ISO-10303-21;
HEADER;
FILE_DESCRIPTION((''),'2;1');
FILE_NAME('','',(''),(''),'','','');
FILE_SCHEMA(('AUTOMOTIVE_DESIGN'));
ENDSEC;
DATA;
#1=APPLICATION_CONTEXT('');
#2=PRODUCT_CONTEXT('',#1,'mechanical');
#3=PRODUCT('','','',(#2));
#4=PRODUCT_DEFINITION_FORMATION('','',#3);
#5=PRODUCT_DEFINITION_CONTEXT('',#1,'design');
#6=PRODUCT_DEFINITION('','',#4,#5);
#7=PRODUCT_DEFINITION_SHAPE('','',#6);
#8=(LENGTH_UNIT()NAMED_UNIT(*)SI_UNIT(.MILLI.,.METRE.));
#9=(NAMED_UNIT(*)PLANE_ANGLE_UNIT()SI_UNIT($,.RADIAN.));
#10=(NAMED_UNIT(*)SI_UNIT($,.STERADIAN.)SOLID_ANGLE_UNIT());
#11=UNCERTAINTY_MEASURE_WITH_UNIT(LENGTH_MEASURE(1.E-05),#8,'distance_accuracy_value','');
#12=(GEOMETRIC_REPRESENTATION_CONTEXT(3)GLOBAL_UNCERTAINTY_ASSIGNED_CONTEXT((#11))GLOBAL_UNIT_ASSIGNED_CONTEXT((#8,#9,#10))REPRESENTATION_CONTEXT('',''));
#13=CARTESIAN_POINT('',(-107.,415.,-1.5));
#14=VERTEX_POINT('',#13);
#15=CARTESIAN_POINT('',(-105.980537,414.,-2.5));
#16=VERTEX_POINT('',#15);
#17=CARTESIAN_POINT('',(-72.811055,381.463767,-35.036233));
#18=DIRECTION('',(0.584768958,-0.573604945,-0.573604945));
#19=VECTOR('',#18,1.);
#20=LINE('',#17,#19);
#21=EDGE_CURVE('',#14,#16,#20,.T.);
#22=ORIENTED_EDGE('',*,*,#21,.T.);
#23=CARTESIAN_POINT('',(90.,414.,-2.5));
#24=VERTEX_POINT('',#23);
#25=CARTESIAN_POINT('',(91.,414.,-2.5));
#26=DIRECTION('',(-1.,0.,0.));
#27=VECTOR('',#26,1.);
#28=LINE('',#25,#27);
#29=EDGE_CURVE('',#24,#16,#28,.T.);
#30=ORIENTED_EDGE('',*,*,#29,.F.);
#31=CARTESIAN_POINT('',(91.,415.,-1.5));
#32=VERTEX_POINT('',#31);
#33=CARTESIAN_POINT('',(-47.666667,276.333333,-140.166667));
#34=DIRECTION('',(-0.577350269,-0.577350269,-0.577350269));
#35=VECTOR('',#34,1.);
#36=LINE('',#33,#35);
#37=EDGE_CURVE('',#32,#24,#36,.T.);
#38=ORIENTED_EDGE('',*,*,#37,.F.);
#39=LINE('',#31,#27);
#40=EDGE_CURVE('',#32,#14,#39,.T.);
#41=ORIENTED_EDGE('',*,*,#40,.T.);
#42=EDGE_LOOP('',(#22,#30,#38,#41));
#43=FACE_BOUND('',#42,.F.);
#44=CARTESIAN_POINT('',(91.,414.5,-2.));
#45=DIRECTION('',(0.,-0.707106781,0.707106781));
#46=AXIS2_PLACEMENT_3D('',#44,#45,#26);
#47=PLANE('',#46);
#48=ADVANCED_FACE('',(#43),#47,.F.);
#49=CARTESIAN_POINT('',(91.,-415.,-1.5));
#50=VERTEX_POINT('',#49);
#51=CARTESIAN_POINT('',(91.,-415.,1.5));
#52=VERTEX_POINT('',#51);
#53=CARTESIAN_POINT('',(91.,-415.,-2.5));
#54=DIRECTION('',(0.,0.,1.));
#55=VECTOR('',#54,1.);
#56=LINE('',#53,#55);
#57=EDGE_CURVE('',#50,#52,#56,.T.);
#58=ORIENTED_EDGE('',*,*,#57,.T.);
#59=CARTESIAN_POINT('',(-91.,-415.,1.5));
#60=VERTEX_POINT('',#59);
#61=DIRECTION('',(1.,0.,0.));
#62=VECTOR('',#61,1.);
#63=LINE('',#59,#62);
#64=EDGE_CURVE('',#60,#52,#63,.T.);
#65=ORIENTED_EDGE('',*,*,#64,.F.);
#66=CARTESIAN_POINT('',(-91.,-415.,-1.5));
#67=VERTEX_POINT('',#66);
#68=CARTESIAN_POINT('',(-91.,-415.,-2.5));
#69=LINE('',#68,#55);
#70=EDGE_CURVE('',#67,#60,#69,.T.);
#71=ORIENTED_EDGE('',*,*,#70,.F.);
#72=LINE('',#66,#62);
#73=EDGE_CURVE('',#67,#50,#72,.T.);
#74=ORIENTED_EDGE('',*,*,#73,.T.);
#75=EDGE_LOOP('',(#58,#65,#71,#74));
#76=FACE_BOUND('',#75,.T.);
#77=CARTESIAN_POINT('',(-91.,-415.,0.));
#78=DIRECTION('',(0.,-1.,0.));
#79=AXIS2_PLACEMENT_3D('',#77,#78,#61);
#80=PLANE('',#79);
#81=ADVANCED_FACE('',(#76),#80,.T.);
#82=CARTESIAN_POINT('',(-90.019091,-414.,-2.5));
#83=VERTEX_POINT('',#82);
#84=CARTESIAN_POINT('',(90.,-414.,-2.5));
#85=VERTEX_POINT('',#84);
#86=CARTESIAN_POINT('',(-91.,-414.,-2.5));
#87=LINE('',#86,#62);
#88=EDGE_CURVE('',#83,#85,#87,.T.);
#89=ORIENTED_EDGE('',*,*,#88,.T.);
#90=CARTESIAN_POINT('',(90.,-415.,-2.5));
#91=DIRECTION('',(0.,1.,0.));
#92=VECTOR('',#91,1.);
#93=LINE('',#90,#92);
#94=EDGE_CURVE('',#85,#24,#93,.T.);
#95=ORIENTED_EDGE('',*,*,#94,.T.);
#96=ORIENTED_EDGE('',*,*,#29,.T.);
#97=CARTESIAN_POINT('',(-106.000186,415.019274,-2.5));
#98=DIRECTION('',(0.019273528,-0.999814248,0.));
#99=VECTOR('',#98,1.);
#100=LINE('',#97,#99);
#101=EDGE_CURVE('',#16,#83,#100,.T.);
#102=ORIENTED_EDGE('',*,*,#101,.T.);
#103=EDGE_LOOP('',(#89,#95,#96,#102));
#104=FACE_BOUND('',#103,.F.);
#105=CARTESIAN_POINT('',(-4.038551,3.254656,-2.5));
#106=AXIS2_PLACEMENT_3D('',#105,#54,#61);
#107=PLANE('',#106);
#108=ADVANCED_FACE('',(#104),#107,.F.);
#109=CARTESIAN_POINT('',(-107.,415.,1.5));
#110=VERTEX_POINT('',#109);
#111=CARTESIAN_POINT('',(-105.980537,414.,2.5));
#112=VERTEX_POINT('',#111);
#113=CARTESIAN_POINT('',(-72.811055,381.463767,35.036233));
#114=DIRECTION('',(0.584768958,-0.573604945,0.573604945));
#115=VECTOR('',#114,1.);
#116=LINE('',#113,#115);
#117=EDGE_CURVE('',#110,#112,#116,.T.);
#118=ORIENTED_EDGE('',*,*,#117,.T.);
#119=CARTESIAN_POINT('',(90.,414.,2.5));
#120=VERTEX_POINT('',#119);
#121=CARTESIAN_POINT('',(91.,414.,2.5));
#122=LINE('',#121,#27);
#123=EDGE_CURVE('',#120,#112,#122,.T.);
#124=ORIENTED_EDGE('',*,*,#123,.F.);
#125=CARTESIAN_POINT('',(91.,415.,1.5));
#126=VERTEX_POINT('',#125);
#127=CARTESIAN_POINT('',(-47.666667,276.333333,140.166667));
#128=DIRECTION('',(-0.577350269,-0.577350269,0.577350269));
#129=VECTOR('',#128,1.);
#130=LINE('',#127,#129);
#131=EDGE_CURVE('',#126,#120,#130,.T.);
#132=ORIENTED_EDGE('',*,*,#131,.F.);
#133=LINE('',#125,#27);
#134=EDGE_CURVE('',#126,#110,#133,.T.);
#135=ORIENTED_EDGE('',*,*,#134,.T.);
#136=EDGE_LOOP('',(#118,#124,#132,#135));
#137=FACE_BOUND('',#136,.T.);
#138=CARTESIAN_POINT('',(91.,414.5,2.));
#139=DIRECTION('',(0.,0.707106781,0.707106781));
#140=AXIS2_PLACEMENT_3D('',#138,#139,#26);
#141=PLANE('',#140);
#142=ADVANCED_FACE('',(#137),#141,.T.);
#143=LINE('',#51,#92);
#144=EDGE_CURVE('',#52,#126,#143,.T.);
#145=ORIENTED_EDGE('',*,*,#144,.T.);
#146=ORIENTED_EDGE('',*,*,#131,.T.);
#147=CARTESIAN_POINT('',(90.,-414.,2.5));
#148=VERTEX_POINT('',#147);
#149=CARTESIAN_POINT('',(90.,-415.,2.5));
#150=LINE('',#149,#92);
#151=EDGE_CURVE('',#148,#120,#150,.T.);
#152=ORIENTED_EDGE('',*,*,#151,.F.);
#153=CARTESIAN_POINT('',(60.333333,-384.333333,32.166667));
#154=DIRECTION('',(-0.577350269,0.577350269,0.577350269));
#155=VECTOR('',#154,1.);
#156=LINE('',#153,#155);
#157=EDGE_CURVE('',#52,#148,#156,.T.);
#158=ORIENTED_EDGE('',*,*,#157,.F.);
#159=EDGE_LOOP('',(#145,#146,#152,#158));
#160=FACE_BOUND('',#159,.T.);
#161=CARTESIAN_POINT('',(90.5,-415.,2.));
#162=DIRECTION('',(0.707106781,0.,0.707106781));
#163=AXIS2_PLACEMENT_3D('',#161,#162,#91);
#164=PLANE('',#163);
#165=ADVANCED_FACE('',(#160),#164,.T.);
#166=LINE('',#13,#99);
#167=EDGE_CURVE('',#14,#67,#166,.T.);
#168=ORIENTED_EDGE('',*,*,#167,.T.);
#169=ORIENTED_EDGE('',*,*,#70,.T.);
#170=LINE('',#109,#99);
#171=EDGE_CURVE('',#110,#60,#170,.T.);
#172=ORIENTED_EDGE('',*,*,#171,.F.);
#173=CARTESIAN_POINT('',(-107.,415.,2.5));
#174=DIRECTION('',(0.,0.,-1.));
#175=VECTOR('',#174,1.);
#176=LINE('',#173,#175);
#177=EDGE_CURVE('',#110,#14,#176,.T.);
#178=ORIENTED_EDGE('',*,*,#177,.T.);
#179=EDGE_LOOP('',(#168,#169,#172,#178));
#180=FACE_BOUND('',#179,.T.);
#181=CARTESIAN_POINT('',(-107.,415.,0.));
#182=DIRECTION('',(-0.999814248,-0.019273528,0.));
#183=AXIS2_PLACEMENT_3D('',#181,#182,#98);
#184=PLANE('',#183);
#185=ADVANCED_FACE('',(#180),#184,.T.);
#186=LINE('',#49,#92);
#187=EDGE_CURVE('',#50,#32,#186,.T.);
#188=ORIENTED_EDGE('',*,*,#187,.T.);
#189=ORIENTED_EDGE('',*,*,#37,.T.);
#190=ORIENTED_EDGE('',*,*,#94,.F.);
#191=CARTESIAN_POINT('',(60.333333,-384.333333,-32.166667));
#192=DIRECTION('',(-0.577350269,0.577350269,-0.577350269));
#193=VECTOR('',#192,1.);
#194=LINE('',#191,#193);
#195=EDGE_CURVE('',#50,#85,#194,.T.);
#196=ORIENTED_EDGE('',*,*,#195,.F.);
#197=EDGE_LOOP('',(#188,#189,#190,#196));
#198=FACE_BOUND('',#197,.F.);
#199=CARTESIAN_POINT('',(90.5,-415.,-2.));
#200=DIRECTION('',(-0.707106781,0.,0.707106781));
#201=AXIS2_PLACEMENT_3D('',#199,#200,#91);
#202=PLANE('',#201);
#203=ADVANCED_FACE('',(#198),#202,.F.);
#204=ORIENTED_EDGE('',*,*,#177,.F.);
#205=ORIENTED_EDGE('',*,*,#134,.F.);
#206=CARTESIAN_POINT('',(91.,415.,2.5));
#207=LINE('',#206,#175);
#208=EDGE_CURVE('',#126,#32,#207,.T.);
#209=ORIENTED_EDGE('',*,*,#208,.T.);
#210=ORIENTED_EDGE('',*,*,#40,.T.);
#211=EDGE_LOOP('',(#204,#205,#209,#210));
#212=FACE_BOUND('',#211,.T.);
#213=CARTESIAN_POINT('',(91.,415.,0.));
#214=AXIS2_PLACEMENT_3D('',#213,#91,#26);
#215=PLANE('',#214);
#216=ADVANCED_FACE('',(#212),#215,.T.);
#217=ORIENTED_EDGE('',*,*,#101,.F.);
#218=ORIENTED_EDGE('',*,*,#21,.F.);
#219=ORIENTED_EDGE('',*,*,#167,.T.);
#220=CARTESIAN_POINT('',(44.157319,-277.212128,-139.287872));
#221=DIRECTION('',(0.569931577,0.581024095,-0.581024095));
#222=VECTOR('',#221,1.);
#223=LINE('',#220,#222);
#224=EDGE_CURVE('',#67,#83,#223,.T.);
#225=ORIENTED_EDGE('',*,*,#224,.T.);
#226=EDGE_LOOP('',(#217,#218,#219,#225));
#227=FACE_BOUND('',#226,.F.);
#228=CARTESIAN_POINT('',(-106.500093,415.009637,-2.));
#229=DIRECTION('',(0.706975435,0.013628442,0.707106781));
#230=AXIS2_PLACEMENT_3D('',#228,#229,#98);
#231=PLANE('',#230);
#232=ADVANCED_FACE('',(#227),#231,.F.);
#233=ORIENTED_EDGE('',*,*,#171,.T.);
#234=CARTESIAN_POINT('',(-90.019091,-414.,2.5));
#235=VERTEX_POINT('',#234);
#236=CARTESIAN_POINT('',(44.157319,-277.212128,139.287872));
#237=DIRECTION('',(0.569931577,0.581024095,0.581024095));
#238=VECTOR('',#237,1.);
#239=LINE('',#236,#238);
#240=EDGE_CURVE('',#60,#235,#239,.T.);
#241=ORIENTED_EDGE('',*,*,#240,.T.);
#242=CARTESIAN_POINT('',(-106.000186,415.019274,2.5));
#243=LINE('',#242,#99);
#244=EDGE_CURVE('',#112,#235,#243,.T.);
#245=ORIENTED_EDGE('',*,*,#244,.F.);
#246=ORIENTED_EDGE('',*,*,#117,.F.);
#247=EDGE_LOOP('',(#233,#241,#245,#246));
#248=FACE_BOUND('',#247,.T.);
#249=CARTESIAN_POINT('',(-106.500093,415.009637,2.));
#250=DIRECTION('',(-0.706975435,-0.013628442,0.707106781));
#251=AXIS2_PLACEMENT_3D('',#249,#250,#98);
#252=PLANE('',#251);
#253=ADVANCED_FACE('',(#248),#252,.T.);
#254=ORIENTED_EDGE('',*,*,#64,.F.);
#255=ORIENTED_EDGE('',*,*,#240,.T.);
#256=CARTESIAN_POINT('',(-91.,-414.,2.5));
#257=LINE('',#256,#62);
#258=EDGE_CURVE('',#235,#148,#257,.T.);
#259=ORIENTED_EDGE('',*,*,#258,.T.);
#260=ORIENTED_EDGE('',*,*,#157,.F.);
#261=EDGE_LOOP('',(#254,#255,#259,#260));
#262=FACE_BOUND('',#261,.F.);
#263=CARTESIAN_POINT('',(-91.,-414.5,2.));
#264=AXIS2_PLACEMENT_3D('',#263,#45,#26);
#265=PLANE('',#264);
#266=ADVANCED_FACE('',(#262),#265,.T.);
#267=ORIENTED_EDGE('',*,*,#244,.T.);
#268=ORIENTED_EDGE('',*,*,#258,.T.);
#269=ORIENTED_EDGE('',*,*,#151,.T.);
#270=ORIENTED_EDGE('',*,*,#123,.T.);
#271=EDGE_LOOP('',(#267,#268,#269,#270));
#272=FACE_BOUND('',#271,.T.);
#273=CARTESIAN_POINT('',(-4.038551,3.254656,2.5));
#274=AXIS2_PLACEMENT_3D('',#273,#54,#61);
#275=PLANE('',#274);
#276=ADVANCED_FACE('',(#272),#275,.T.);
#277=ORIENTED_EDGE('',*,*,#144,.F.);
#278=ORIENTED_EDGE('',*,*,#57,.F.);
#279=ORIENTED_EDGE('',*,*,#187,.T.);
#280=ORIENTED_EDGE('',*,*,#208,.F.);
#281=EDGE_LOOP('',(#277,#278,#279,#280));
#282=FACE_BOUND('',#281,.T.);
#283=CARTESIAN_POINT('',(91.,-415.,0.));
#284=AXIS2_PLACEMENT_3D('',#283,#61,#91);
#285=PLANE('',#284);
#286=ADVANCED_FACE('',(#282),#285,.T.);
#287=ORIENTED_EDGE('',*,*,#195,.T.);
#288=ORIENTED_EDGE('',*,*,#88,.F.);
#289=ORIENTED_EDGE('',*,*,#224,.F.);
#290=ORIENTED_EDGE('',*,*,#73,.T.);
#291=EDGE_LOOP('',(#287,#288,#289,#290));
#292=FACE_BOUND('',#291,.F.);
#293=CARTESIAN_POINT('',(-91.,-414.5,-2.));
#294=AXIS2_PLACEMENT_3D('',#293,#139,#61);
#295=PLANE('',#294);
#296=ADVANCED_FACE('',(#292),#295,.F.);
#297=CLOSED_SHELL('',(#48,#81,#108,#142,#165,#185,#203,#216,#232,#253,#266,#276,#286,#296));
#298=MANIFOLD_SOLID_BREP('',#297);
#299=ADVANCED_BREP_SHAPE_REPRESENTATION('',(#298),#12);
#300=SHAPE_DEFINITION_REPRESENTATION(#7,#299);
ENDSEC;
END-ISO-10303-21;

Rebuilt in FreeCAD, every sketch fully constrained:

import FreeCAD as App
import Part
import Sketcher

V = App.Vector
Q = App.Units.Quantity


def edges_at(feature, points):
    """Names of the edges that pass closest to the given points."""
    edges = feature.Shape.Edges
    near = lambda p: min(range(len(edges)), key=lambda i: edges[i].distToShape(Part.Vertex(*p))[0])
    return sorted({f"Edge{near(p) + 1}" for p in points})


def add_polygon(sketch, points):
    """Adds a closed chain of lines whose ends are joined by coincident constraints."""
    first, n = sketch.GeometryCount, len(points)
    for a, b in zip(points, points[1:] + points[:1]):
        sketch.addGeometry(Part.LineSegment(App.Vector(*a, 0), App.Vector(*b, 0)), False)
    for i in range(n):
        sketch.addConstraint(Sketcher.Constraint("Coincident", first + i, 2, first + (i + 1) % n, 1))

doc = App.newDocument("Part")
body = doc.addObject("PartDesign::Body", "Body")

sketch1 = body.newObject("Sketcher::SketchObject", "Sketch")
sketch1.AttachmentSupport = (doc.getObject("XY_Plane"), [""])
sketch1.MapMode = "FlatFace"
add_polygon(sketch1, [(-107, 415), (-91, -415), (91, -415), (91, 415)])
sketch1.addConstraint([
    Sketcher.Constraint("Horizontal", 1),
    Sketcher.Constraint("Vertical", 2),
    Sketcher.Constraint("Horizontal", 3),
    Sketcher.Constraint("Symmetric", 0, 2, 2, 2, -1, 1),
    Sketcher.Constraint("DistanceX", 1, 1, 1, 2, Q("182 mm")),
    Sketcher.Constraint("DistanceX", 3, 2, 3, 1, Q("198 mm")),
    Sketcher.Constraint("DistanceY", 2, 1, 2, 2, Q("830 mm")),
])
pad1 = body.newObject("PartDesign::Pad", "Pad")
pad1.Profile = sketch1
pad1.Length = 5
pad1.Midplane = True
doc.recompute()

chamfer = body.newObject("PartDesign::Chamfer", "Chamfer")
chamfer.Base = (pad1, edges_at(pad1, [
    (-99, 0, 2.5),
    (-99, 0, -2.5),
    (-8, 415, 2.5),
    (-8, 415, -2.5),
    (91, 0, 2.5),
    (91, 0, -2.5),
    (0, -415, 2.5),
    (0, -415, -2.5),
]))
chamfer.Size = 1

doc.recompute()
